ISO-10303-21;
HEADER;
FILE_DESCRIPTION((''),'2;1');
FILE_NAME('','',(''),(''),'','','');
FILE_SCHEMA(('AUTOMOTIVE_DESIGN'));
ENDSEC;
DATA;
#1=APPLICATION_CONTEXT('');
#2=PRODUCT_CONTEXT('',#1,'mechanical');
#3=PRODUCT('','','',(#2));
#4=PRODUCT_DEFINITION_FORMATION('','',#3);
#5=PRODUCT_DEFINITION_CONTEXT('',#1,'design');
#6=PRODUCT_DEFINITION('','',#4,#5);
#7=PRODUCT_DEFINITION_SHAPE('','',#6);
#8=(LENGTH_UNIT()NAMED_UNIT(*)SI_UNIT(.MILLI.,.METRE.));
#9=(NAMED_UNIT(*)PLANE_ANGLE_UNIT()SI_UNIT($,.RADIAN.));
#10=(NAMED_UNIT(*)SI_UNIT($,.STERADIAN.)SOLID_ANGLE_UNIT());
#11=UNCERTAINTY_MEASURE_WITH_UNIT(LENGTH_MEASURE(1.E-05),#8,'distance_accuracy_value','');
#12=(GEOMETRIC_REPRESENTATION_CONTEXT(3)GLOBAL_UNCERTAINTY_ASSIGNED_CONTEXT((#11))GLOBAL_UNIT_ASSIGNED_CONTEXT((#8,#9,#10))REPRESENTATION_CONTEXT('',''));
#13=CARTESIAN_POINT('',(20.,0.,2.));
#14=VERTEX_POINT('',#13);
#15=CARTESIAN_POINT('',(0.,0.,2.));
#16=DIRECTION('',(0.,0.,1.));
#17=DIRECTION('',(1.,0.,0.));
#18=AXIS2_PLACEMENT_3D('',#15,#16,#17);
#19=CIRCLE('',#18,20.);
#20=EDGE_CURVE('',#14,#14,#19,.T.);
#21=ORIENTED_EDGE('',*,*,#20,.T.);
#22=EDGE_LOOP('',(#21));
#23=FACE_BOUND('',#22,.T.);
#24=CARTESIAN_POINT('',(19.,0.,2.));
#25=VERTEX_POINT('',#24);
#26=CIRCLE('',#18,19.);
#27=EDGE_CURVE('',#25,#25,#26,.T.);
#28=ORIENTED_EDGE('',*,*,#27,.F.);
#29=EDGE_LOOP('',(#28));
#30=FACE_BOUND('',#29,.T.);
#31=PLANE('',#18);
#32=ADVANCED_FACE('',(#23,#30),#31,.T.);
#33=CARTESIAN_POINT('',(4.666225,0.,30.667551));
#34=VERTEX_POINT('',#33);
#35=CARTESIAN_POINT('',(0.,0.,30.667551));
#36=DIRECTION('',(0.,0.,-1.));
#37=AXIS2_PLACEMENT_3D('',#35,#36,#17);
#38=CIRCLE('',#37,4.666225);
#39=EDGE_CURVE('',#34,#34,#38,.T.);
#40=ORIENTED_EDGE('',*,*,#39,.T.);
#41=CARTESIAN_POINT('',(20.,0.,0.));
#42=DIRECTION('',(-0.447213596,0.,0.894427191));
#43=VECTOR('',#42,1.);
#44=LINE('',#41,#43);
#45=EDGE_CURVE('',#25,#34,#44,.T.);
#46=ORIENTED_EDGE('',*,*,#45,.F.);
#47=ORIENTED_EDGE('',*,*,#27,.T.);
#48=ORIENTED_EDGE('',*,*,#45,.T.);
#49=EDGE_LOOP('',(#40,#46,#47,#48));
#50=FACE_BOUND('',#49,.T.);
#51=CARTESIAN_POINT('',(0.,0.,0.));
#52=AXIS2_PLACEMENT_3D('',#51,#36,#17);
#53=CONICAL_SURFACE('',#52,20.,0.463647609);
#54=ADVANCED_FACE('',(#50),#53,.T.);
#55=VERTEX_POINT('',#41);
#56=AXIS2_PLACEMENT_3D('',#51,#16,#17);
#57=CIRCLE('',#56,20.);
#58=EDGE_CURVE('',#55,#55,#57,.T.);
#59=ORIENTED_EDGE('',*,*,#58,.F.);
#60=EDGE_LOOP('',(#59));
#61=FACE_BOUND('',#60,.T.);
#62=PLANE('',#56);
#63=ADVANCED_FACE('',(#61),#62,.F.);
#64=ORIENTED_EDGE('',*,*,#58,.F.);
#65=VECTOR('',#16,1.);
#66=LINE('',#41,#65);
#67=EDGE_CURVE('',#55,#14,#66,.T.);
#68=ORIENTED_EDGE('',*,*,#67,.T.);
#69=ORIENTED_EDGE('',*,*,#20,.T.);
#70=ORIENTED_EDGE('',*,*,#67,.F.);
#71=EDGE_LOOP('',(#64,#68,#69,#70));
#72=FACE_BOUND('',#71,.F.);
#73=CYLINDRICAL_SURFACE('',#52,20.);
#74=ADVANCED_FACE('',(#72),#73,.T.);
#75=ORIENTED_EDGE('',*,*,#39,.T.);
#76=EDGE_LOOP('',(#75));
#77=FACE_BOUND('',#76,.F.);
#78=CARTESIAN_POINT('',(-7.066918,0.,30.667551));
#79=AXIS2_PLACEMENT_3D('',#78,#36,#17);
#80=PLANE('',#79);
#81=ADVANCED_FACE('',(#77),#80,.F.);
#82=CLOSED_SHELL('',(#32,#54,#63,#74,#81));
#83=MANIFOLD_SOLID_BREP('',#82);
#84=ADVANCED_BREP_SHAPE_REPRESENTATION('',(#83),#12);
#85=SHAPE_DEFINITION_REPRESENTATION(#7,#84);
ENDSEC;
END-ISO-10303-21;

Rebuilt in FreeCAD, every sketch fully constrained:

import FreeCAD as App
import Part
import Sketcher

V = App.Vector
Q = App.Units.Quantity

doc = App.newDocument("Part")
params = doc.addObject("Spreadsheet::Sheet", "Params")
for row, (alias, value) in enumerate([
    ("sketch1_width", "20 mm"),
    ("sketch1_height", "40 mm"),
    ("revolution_angle", "360 deg"),
    ("sketch2_diameter", "40 mm"),
    ("pad1_length", "2 mm"),
], start=1):
    params.set(f"A{row}", alias)
    params.set(f"B{row}", "=" + value)
    params.setAlias(f"B{row}", alias)

body = doc.addObject("PartDesign::Body", "Body")

sketch1 = body.newObject("Sketcher::SketchObject", "Sketch")
sketch1.AttachmentSupport = (doc.getObject("XZ_Plane"), [""])
sketch1.MapMode = "FlatFace"
sketch1.addGeometry([
    Part.LineSegment(V(0, 40, 0), V(0, 0, 0)),
    Part.LineSegment(V(0, 0, 0), V(20, 0, 0)),
    Part.LineSegment(V(20, 0, 0), V(0, 40, 0)),
], False)
sketch1.addConstraint([
    Sketcher.Constraint("Coincident", 0, 2, 1, 1),
    Sketcher.Constraint("Coincident", 1, 2, 2, 1),
    Sketcher.Constraint("Coincident", 2, 2, 0, 1),
    Sketcher.Constraint("Vertical", 0),
    Sketcher.Constraint("Horizontal", 1),
    Sketcher.Constraint("Coincident", 0, 2, -1, 1),
    Sketcher.Constraint("DistanceX", 1, 1, 1, 2, Q("20 mm")),
    Sketcher.Constraint("DistanceY", 0, 2, 0, 1, Q("40 mm")),
])
sketch1.setExpression("Constraints[6]", "Params.sketch1_width")
sketch1.setExpression("Constraints[7]", "Params.sketch1_height")
revolution = body.newObject("PartDesign::Revolution", "Revolution")
revolution.Profile = sketch1
revolution.ReferenceAxis = (sketch1, ["V_Axis"])
revolution.setExpression("Angle", "Params.revolution_angle")

sketch2 = body.newObject("Sketcher::SketchObject", "Sketch001")
sketch2.AttachmentSupport = (doc.getObject("XY_Plane"), [""])
sketch2.MapMode = "FlatFace"
sketch2.addGeometry(Part.Circle(V(0, 0, 0), V(0, 0, 1), 20), False)
sketch2.addConstraint([
    Sketcher.Constraint("Coincident", 0, 3, -1, 1),
    Sketcher.Constraint("Diameter", 0, Q("40 mm")),
])
sketch2.setExpression("Constraints[1]", "Params.sketch2_diameter")
pad1 = body.newObject("PartDesign::Pad", "Pad")
pad1.Profile = sketch2
pad1.setExpression("Length", "Params.pad1_length")

sketch3 = body.newObject("Sketcher::SketchObject", "Sketch002")
sketch3.AttachmentSupport = (doc.getObject("XZ_Plane"), [""])
sketch3.MapMode = "FlatFace"
sketch3.addGeometry([
    Part.LineSegment(V(-7.066918, 45.578871, 0), V(-7.066918, 30.667551, 0)),
    Part.LineSegment(V(-7.066918, 30.667551, 0), V(8.074961, 30.667551, 0)),
    Part.LineSegment(V(8.074961, 30.667551, 0), V(8.074961, 45.578871, 0)),
    Part.LineSegment(V(8.074961, 45.578871, 0), V(-7.066918, 45.578871, 0)),
], False)
sketch3.addConstraint([
    Sketcher.Constraint("Coincident", 0, 2, 1, 1),
    Sketcher.Constraint("Coincident", 1, 2, 2, 1),
    Sketcher.Constraint("Coincident", 2, 2, 3, 1),
    Sketcher.Constraint("Coincident", 3, 2, 0, 1),
    Sketcher.Constraint("Vertical", 0),
    Sketcher.Constraint("Horizontal", 1),
    Sketcher.Constraint("Vertical", 2),
    Sketcher.Constraint("Horizontal", 3),
    Sketcher.Constraint("DistanceX", 1, 1, 1, 2, Q("15.141878 mm")),
    Sketcher.Constraint("DistanceY", 0, 2, 0, 1, Q("14.91132 mm")),
    Sketcher.Constraint("DistanceY", -1, 1, 0, 2, Q("30.667551 mm")),
    Sketcher.Constraint("DistanceX", -1, 1, 1, 2, Q("8.074961 mm")),
])
pocket1 = body.newObject("PartDesign::Pocket", "Pocket")
pocket1.Profile = sketch3
pocket1.Type = "ThroughAll"
pocket1.Midplane = True

doc.recompute()
